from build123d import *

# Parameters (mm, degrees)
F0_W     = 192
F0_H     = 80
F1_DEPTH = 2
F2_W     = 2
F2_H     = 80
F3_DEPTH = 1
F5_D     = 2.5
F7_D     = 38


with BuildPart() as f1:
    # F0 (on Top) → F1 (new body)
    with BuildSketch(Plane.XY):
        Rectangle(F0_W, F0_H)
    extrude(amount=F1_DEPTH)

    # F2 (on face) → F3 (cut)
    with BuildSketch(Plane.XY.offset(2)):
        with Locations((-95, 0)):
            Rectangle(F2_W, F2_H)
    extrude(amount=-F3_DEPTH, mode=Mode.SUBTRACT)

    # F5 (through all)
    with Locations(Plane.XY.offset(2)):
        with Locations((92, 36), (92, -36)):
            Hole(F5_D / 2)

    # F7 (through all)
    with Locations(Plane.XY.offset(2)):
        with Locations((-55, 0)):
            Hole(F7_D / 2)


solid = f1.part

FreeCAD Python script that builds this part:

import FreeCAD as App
import Part
import Sketcher

V = App.Vector

doc = App.newDocument("Part")
params = doc.addObject("Spreadsheet::Sheet", "Params")
for row, (alias, value) in enumerate([
    ("sketch1_width", "192 mm"),
    ("sketch1_height", "80 mm"),
    ("pad1_length", "2 mm"),
    ("sketch2_width", "2 mm"),
    ("sketch2_height", "80 mm"),
    ("pocket1_length", "1 mm"),
    ("sketch3_diameter", "2.5 mm"),
    ("hole_diameter", "2.5 mm"),
    ("sketch4_diameter", "38 mm"),
    ("hole2_diameter", "38 mm"),
], start=1):
    params.set(f"A{row}", alias)
    params.set(f"B{row}", "=" + value)
    params.setAlias(f"B{row}", alias)

body = doc.addObject("PartDesign::Body", "Body")

# Sketch on XY plane
sketch1 = doc.addObject("Sketcher::SketchObject", "Sketch")
body.addObject(sketch1)
sketch1.AttachmentSupport = (doc.XY_Plane, [""])
sketch1.MapMode = "FlatFace"
sketch1.addGeometry(Part.LineSegment(V(-96, 40, 0), V(-96, -40, 0)), False)
sketch1.addGeometry(Part.LineSegment(V(-96, -40, 0), V(96, -40, 0)), False)
sketch1.addGeometry(Part.LineSegment(V(96, -40, 0), V(96, 40, 0)), False)
sketch1.addGeometry(Part.LineSegment(V(96, 40, 0), V(-96, 40, 0)), False)
sketch1.addConstraint(Sketcher.Constraint("Coincident", 0, 2, 1, 1))
sketch1.addConstraint(Sketcher.Constraint("Coincident", 1, 2, 2, 1))
sketch1.addConstraint(Sketcher.Constraint("Coincident", 2, 2, 3, 1))
sketch1.addConstraint(Sketcher.Constraint("Coincident", 3, 2, 0, 1))
sketch1.addConstraint(Sketcher.Constraint("Vertical", 0))
sketch1.addConstraint(Sketcher.Constraint("Horizontal", 1))
sketch1.addConstraint(Sketcher.Constraint("Vertical", 2))
sketch1.addConstraint(Sketcher.Constraint("Horizontal", 3))
sketch1.addConstraint(Sketcher.Constraint("Symmetric", 0, 2, 2, 2, -1, 1))
sketch1.addConstraint(Sketcher.Constraint("DistanceX", 1, 1, 1, 2, 192.0))
sketch1.addConstraint(Sketcher.Constraint("DistanceY", 0, 2, 0, 1, 80.0))
sketch1.setExpression("Constraints[9]", "Params.sketch1_width")
sketch1.setExpression("Constraints[10]", "Params.sketch1_height")
pad1 = doc.addObject("PartDesign::Pad", "Pad")
body.addObject(pad1)
pad1.Profile = sketch1
pad1.setExpression("Length", "Params.pad1_length")

# Sketch on XY plane
sketch2 = doc.addObject("Sketcher::SketchObject", "Sketch001")
body.addObject(sketch2)
sketch2.AttachmentSupport = (doc.XY_Plane, [""])
sketch2.MapMode = "FlatFace"
sketch2.AttachmentOffset = App.Placement(V(0, 0, 2), App.Rotation())
sketch2.addGeometry(Part.LineSegment(V(-96, 40, 0), V(-96, -40, 0)), False)
sketch2.addGeometry(Part.LineSegment(V(-96, -40, 0), V(-94, -40, 0)), False)
sketch2.addGeometry(Part.LineSegment(V(-94, -40, 0), V(-94, 40, 0)), False)
sketch2.addGeometry(Part.LineSegment(V(-94, 40, 0), V(-96, 40, 0)), False)
sketch2.addConstraint(Sketcher.Constraint("Coincident", 0, 2, 1, 1))
sketch2.addConstraint(Sketcher.Constraint("Coincident", 1, 2, 2, 1))
sketch2.addConstraint(Sketcher.Constraint("Coincident", 2, 2, 3, 1))
sketch2.addConstraint(Sketcher.Constraint("Coincident", 3, 2, 0, 1))
sketch2.addConstraint(Sketcher.Constraint("Vertical", 0))
sketch2.addConstraint(Sketcher.Constraint("Horizontal", 1))
sketch2.addConstraint(Sketcher.Constraint("Vertical", 2))
sketch2.addConstraint(Sketcher.Constraint("Horizontal", 3))
sketch2.addConstraint(Sketcher.Constraint("DistanceX", 1, 1, 1, 2, 2.0))
sketch2.addConstraint(Sketcher.Constraint("DistanceY", 0, 2, 0, 1, 80.0))
sketch2.addConstraint(Sketcher.Constraint("DistanceX", 0, 2, -1, 1, 96.0))
sketch2.addConstraint(Sketcher.Constraint("DistanceY", 0, 2, -1, 1, 40.0))
sketch2.setExpression("Constraints[8]", "Params.sketch2_width")
sketch2.setExpression("Constraints[9]", "Params.sketch2_height")
pocket1 = doc.addObject("PartDesign::Pocket", "Pocket")
body.addObject(pocket1)
pocket1.Profile = sketch2
pocket1.setExpression("Length", "Params.pocket1_length")

# Sketch on XY plane
sketch3 = doc.addObject("Sketcher::SketchObject", "Sketch002")
body.addObject(sketch3)
sketch3.AttachmentSupport = (doc.XY_Plane, [""])
sketch3.MapMode = "FlatFace"
sketch3.AttachmentOffset = App.Placement(V(0, 0, 2), App.Rotation())
sketch3.addGeometry(Part.Circle(V(92, 36, 0), V(0, 0, 1), 1.2), False)
sketch3.addGeometry(Part.Circle(V(92, -36, 0), V(0, 0, 1), 1.2), False)
sketch3.addConstraint(Sketcher.Constraint("Equal", 0, 1))
sketch3.addConstraint(Sketcher.Constraint("Symmetric", 0, 3, 1, 3, -1))
sketch3.addConstraint(Sketcher.Constraint("Diameter", 0, 2.5))
sketch3.addConstraint(Sketcher.Constraint("DistanceX", -1, 1, 0, 3, 92.0))
sketch3.addConstraint(Sketcher.Constraint("DistanceY", -1, 1, 0, 3, 36.0))
sketch3.setExpression("Constraints[2]", "Params.sketch3_diameter")
doc.recompute()
hole = doc.addObject("PartDesign::Hole", "Hole")
body.addObject(hole)
hole.Profile = sketch3
hole.ThreadType = "None"
hole.setExpression("Diameter", "Params.hole_diameter")
hole.DepthType = "ThroughAll"

# Sketch on XY plane
sketch4 = doc.addObject("Sketcher::SketchObject", "Sketch003")
body.addObject(sketch4)
sketch4.AttachmentSupport = (doc.XY_Plane, [""])
sketch4.MapMode = "FlatFace"
sketch4.AttachmentOffset = App.Placement(V(0, 0, 2), App.Rotation())
sketch4.addGeometry(Part.Circle(V(-55, 0, 0), V(0, 0, 1), 19), False)
sketch4.addConstraint(Sketcher.Constraint("PointOnObject", 0, 3, -1))
sketch4.addConstraint(Sketcher.Constraint("Diameter", 0, 38.0))
sketch4.addConstraint(Sketcher.Constraint("DistanceX", 0, 3, -1, 1, 55.0))
sketch4.setExpression("Constraints[1]", "Params.sketch4_diameter")
doc.recompute()
hole2 = doc.addObject("PartDesign::Hole", "Hole001")
body.addObject(hole2)
hole2.Profile = sketch4
hole2.ThreadType = "None"
hole2.setExpression("Diameter", "Params.hole2_diameter")
hole2.DepthType = "ThroughAll"

doc.recompute()
